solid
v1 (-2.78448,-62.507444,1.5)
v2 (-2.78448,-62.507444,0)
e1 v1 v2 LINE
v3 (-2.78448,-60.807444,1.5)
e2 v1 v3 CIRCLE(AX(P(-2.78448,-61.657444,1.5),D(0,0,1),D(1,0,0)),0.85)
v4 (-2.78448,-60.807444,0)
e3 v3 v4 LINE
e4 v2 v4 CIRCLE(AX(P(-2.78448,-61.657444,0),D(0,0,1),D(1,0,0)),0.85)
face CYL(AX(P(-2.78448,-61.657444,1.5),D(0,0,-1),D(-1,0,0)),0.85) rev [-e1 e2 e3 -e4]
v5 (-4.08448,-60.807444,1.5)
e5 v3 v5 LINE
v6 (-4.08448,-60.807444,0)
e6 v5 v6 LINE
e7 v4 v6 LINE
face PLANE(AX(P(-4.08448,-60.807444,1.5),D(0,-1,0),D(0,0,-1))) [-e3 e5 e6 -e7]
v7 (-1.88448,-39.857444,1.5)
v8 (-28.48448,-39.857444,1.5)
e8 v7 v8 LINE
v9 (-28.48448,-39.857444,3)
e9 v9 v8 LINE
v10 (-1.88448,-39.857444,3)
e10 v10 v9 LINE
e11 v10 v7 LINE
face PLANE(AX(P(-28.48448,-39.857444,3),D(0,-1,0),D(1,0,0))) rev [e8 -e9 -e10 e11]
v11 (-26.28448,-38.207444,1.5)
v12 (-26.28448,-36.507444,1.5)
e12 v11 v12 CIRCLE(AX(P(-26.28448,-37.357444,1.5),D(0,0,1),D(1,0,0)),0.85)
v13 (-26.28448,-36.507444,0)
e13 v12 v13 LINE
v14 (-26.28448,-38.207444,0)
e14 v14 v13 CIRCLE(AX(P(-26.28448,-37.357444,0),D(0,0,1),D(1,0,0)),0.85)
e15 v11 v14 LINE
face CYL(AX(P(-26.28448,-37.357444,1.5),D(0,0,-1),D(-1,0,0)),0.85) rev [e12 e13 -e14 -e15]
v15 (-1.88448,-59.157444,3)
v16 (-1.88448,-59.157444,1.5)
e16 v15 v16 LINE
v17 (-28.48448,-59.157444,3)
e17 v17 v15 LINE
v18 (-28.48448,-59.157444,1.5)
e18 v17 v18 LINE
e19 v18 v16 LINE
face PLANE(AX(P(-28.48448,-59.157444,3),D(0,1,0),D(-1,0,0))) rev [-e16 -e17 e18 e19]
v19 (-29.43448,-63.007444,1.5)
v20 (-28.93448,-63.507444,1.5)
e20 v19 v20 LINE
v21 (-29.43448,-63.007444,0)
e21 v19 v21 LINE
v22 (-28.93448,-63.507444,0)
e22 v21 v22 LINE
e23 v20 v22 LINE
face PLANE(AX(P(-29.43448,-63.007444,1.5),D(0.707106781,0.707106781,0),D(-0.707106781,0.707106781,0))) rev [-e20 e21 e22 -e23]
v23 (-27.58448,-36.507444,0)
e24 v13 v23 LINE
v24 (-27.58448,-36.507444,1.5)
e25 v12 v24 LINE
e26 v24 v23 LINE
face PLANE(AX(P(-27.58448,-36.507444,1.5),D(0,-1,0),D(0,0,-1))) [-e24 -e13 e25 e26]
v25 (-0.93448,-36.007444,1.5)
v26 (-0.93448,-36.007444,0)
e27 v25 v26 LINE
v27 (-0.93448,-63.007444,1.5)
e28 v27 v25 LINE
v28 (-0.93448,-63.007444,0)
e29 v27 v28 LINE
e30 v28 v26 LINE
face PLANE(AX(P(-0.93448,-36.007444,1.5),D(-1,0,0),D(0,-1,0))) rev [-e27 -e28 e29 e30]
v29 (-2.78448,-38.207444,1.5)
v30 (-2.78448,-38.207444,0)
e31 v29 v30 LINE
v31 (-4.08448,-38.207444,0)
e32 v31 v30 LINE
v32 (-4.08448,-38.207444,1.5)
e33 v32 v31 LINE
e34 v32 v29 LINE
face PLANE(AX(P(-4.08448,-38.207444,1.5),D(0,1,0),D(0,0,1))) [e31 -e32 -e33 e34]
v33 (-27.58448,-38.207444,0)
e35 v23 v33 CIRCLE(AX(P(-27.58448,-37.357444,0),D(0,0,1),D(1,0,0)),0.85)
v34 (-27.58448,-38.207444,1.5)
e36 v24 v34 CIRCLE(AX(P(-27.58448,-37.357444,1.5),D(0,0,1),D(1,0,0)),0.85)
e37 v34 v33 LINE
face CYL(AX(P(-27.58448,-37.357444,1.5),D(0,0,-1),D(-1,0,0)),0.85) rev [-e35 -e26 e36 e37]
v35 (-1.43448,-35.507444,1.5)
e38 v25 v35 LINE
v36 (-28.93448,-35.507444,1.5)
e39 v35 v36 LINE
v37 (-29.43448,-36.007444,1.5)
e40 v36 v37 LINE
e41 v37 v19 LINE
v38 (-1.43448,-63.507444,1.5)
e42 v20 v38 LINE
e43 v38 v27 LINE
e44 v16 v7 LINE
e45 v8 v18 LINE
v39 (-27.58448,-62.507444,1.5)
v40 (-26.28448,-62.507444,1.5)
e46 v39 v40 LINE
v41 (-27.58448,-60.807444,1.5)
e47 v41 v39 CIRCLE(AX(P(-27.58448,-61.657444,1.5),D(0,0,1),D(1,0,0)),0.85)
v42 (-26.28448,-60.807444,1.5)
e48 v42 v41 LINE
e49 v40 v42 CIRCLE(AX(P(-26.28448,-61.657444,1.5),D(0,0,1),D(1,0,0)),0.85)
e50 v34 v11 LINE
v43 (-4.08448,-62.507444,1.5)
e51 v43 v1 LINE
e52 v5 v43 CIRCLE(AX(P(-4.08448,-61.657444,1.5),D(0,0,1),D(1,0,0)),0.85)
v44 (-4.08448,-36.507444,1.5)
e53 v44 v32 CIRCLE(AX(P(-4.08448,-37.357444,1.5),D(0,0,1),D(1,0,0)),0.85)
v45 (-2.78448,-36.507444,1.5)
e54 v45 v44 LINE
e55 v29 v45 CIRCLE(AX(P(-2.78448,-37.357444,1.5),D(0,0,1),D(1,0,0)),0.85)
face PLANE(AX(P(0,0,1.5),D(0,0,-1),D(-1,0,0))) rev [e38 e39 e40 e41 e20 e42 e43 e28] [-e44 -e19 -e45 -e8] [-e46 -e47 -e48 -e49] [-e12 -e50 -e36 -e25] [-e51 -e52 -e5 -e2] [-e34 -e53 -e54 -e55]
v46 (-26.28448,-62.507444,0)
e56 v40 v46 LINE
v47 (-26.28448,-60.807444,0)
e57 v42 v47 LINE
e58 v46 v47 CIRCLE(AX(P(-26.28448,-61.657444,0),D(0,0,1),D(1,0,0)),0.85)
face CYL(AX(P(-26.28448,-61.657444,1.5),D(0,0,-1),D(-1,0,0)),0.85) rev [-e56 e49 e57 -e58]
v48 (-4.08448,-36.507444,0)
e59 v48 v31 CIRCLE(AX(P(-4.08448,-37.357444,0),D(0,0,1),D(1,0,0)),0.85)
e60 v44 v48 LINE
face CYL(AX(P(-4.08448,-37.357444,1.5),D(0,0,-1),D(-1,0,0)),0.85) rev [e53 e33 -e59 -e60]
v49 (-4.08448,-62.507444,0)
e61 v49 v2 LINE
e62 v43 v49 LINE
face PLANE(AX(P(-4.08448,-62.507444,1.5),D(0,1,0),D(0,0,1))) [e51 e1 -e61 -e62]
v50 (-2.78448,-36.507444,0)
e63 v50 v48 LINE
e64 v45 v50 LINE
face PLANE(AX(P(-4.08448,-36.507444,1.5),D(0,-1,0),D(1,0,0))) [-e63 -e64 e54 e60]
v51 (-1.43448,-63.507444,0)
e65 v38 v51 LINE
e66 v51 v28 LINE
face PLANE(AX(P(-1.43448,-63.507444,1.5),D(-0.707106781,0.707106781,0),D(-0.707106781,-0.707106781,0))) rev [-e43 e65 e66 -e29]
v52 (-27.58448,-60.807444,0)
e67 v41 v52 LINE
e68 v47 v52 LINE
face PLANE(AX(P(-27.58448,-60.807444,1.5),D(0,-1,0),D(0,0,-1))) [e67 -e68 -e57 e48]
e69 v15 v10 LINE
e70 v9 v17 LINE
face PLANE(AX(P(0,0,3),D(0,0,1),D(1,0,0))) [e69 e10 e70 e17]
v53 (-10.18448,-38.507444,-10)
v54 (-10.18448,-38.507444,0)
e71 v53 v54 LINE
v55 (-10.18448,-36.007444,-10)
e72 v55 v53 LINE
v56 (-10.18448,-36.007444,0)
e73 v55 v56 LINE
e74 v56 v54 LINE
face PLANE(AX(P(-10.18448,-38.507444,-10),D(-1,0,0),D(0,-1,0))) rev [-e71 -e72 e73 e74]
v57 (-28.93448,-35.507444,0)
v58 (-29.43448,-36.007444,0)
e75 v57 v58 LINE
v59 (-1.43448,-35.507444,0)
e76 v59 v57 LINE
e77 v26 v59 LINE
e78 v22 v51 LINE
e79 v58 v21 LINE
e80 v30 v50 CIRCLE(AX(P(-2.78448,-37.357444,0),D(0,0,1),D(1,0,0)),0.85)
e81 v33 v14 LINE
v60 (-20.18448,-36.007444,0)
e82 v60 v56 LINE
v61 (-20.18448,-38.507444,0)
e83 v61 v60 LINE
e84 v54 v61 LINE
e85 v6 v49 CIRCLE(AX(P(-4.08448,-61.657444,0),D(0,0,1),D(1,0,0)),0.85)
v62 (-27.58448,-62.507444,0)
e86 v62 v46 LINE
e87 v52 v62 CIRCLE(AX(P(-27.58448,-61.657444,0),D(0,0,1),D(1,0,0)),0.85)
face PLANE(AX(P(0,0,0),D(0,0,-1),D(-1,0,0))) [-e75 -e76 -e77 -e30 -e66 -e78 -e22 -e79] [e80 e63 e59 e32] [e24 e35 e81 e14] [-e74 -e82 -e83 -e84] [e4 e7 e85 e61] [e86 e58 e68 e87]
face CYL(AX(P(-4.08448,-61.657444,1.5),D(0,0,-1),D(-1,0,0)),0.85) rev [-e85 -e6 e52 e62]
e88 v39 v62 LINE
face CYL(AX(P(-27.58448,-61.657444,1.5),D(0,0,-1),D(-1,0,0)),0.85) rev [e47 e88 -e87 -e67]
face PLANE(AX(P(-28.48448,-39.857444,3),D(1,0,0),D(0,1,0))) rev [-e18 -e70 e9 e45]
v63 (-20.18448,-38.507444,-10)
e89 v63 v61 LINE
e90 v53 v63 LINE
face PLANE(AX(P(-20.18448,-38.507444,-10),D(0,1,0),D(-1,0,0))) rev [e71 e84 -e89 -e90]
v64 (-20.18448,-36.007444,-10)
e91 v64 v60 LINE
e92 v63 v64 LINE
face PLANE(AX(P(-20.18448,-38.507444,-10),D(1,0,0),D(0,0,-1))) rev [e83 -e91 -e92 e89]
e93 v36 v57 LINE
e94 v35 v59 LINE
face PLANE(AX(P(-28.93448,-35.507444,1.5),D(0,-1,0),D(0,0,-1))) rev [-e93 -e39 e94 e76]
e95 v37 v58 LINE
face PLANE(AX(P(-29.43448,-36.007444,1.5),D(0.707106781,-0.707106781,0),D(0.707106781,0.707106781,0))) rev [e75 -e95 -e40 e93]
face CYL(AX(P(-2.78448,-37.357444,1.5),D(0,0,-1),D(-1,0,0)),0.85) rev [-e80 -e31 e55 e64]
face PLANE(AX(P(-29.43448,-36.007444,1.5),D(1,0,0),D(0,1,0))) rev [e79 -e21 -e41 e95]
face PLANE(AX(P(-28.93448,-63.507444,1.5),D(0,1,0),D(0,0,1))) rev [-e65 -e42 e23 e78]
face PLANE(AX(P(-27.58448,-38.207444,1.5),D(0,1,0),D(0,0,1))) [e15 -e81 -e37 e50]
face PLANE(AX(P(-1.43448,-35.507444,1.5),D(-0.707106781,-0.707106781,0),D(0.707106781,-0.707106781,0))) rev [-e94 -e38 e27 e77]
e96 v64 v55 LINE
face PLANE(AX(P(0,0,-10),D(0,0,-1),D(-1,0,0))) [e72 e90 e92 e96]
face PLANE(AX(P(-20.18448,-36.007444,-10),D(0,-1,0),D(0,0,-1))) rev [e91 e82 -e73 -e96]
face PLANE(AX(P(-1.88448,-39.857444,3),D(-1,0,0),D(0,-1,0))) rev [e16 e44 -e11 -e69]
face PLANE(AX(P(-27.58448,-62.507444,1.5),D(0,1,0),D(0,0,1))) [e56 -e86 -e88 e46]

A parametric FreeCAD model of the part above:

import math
import FreeCAD as App
import Part
import Sketcher
from FreeCAD import Vector
Q = App.Units.Quantity

doc = App.newDocument("Part")
body = doc.addObject("PartDesign::Body", "Body")

# Sketch on XY plane
sketch1 = body.newObject("Sketcher::SketchObject", "Sketch")
sketch1.AttachmentSupport = (doc.getObject("XY_Plane"), [""])
sketch1.MapMode = "FlatFace"
sketch1.addGeometry([
    Part.LineSegment(Vector(-1.4, -35.5, 0), Vector(-28.9, -35.5, 0)),  # 0
    Part.LineSegment(Vector(-28.9, -35.5, 0), Vector(-29.4, -36, 0)),  # 1
    Part.LineSegment(Vector(-29.4, -36, 0), Vector(-29.4, -63, 0)),  # 2
    Part.LineSegment(Vector(-29.4, -63, 0), Vector(-28.9, -63.5, 0)),  # 3
    Part.LineSegment(Vector(-28.9, -63.5, 0), Vector(-1.4, -63.5, 0)),  # 4
    Part.LineSegment(Vector(-1.4, -63.5, 0), Vector(-0.9, -63, 0)),  # 5
    Part.LineSegment(Vector(-0.9, -63, 0), Vector(-0.9, -36, 0)),  # 6
    Part.LineSegment(Vector(-0.9, -36, 0), Vector(-1.4, -35.5, 0)),  # 7
    Part.LineSegment(Vector(-4.1, -60.8, 0), Vector(-2.8, -60.8, 0)),  # 8
    Part.ArcOfCircle(Part.Circle(Vector(-2.8, -61.7, 0), Vector(0, 0, 1), 0.8), math.radians(-90), math.radians(90)),  # 9
    Part.LineSegment(Vector(-2.8, -62.5, 0), Vector(-4.1, -62.5, 0)),  # 10
    Part.ArcOfCircle(Part.Circle(Vector(-4.1, -61.7, 0), Vector(0, 0, 1), 0.8), math.radians(90), math.radians(270)),  # 11
    Part.LineSegment(Vector(-27.6, -60.8, 0), Vector(-26.3, -60.8, 0)),  # 12
    Part.ArcOfCircle(Part.Circle(Vector(-26.3, -61.7, 0), Vector(0, 0, 1), 0.8), math.radians(-90), math.radians(90)),  # 13
    Part.LineSegment(Vector(-26.3, -62.5, 0), Vector(-27.6, -62.5, 0)),  # 14
    Part.ArcOfCircle(Part.Circle(Vector(-27.6, -61.7, 0), Vector(0, 0, 1), 0.8), math.radians(90), math.radians(270)),  # 15
    Part.LineSegment(Vector(-4.1, -36.5, 0), Vector(-2.8, -36.5, 0)),  # 16
    Part.ArcOfCircle(Part.Circle(Vector(-2.8, -37.4, 0), Vector(0, 0, 1), 0.8), math.radians(-90), math.radians(90)),  # 17
    Part.LineSegment(Vector(-2.8, -38.2, 0), Vector(-4.1, -38.2, 0)),  # 18
    Part.ArcOfCircle(Part.Circle(Vector(-4.1, -37.4, 0), Vector(0, 0, 1), 0.8), math.radians(90), math.radians(270)),  # 19
    Part.LineSegment(Vector(-27.6, -36.5, 0), Vector(-26.3, -36.5, 0)),  # 20
    Part.ArcOfCircle(Part.Circle(Vector(-26.3, -37.4, 0), Vector(0, 0, 1), 0.8), math.radians(-90), math.radians(90)),  # 21
    Part.LineSegment(Vector(-26.3, -38.2, 0), Vector(-27.6, -38.2, 0)),  # 22
    Part.ArcOfCircle(Part.Circle(Vector(-27.6, -37.4, 0), Vector(0, 0, 1), 0.8), math.radians(90), math.radians(270)),  # 23
], False)
sketch1.addConstraint([
    Sketcher.Constraint("Coincident", 0, 2, 1, 1),
    Sketcher.Constraint("Coincident", 1, 2, 2, 1),
    Sketcher.Constraint("Coincident", 2, 2, 3, 1),
    Sketcher.Constraint("Coincident", 3, 2, 4, 1),
    Sketcher.Constraint("Coincident", 4, 2, 5, 1),
    Sketcher.Constraint("Coincident", 5, 2, 6, 1),
    Sketcher.Constraint("Coincident", 6, 2, 7, 1),
    Sketcher.Constraint("Coincident", 7, 2, 0, 1),
    Sketcher.Constraint("Tangent", 8, 2, 9, 2),
    Sketcher.Constraint("Tangent", 9, 1, 10, 1),
    Sketcher.Constraint("Tangent", 10, 2, 11, 2),
    Sketcher.Constraint("Tangent", 11, 1, 8, 1),
    Sketcher.Constraint("Tangent", 12, 2, 13, 2),
    Sketcher.Constraint("Tangent", 13, 1, 14, 1),
    Sketcher.Constraint("Tangent", 14, 2, 15, 2),
    Sketcher.Constraint("Tangent", 15, 1, 12, 1),
    Sketcher.Constraint("Tangent", 16, 2, 17, 2),
    Sketcher.Constraint("Tangent", 17, 1, 18, 1),
    Sketcher.Constraint("Tangent", 18, 2, 19, 2),
    Sketcher.Constraint("Tangent", 19, 1, 16, 1),
    Sketcher.Constraint("Tangent", 20, 2, 21, 2),
    Sketcher.Constraint("Tangent", 21, 1, 22, 1),
    Sketcher.Constraint("Tangent", 22, 2, 23, 2),
    Sketcher.Constraint("Tangent", 23, 1, 20, 1),
    Sketcher.Constraint("Horizontal", 0),
    Sketcher.Constraint("Vertical", 2),
    Sketcher.Constraint("Horizontal", 4),
    Sketcher.Constraint("Vertical", 6),
    Sketcher.Constraint("Horizontal", 8),
    Sketcher.Constraint("Horizontal", 10),
    Sketcher.Constraint("Horizontal", 12),
    Sketcher.Constraint("Horizontal", 14),
    Sketcher.Constraint("Horizontal", 16),
    Sketcher.Constraint("Horizontal", 18),
    Sketcher.Constraint("Horizontal", 20),
    Sketcher.Constraint("Horizontal", 22),
    Sketcher.Constraint("Equal", 11, 13),
    Sketcher.Constraint("Equal", 15, 17),
    Sketcher.Constraint("Equal", 19, 21),
    Sketcher.Constraint("Perpendicular", 1, 3),
    Sketcher.Constraint("Perpendicular", 3, 5),
    Sketcher.Constraint("Perpendicular", 5, 7),
    Sketcher.Constraint("Horizontal", 11, 3, 13, 3),
    Sketcher.Constraint("Horizontal", 19, 3, 21, 3),
    Sketcher.Constraint("Horizontal", 2, 2, 5, 2),
    Sketcher.Constraint("Horizontal", 1, 2, 6, 2),
    Sketcher.Constraint("Vertical", 9, 3, 17, 3),
    Sketcher.Constraint("Vertical", 11, 3, 19, 3),
    Sketcher.Constraint("Vertical", 13, 3, 21, 3),
    Sketcher.Constraint("Vertical", 15, 3, 23, 3),
    Sketcher.Constraint("Vertical", 0, 2, 3, 2),
    Sketcher.Constraint("Vertical", 4, 2, 7, 2),
    Sketcher.Constraint("Equal", 10, 12),
    Sketcher.Constraint("DistanceY", 2, 2, 2, 1, Q("27 mm")),
    Sketcher.Constraint("Radius", 9, Q("0.85 mm")),
    Sketcher.Constraint("DistanceX", 0, 2, 0, 1, Q("27.5 mm")),
    Sketcher.Constraint("DistanceX", 8, 1, 8, 2, Q("1.3 mm")),
    Sketcher.Constraint("DistanceY", 4, 2, 9, 1, Q("1 mm")),
    Sketcher.Constraint("DistanceY", 16, 2, 7, 2, Q("1 mm")),
    Sketcher.Constraint("DistanceX", 13, 3, 11, 3, Q("22.2 mm")),
    Sketcher.Constraint("DistanceY", 9, 3, 17, 3, Q("24.3 mm")),
    Sketcher.Constraint("DistanceX", 0, 2, 23, 3, Q("1.35 mm")),
    Sketcher.Constraint("DistanceX", 9, 3, -1, 1, Q("2.78448 mm")),
    Sketcher.Constraint("DistanceY", 9, 3, -1, 1, Q("61.657444 mm")),
])
pad1 = body.newObject("PartDesign::Pad", "Pad")
pad1.Profile = sketch1
pad1.Length = 1.5

# Sketch on XY plane
sketch2 = body.newObject("Sketcher::SketchObject", "Sketch001")
sketch2.AttachmentSupport = (doc.getObject("XY_Plane"), [""])
sketch2.MapMode = "FlatFace"
sketch2.AttachmentOffset = App.Placement(Vector(0, 0, 1.5), App.Rotation())
sketch2.addGeometry([
    Part.LineSegment(Vector(-28, -40, 0), Vector(-28, -59, 0)),
    Part.LineSegment(Vector(-28, -59, 0), Vector(-2, -59, 0)),
    Part.LineSegment(Vector(-2, -59, 0), Vector(-2, -40, 0)),
    Part.LineSegment(Vector(-2, -40, 0), Vector(-28, -40, 0)),
], False)
sketch2.addConstraint([
    Sketcher.Constraint("Coincident", 0, 2, 1, 1),
    Sketcher.Constraint("Coincident", 1, 2, 2, 1),
    Sketcher.Constraint("Coincident", 2, 2, 3, 1),
    Sketcher.Constraint("Coincident", 3, 2, 0, 1),
    Sketcher.Constraint("Vertical", 0),
    Sketcher.Constraint("Horizontal", 1),
    Sketcher.Constraint("Vertical", 2),
    Sketcher.Constraint("Horizontal", 3),
    Sketcher.Constraint("DistanceX", 1, 1, 1, 2, Q("26.6 mm")),
    Sketcher.Constraint("DistanceY", 0, 2, 0, 1, Q("19.3 mm")),
    Sketcher.Constraint("DistanceX", 0, 2, -1, 1, Q("28.48448 mm")),
    Sketcher.Constraint("DistanceY", 0, 2, -1, 1, Q("59.157444 mm")),
])
pad2 = body.newObject("PartDesign::Pad", "Pad001")
pad2.Profile = sketch2
pad2.Length = 1.5

# Sketch on XY plane
sketch3 = body.newObject("Sketcher::SketchObject", "Sketch002")
sketch3.AttachmentSupport = (doc.getObject("XY_Plane"), [""])
sketch3.MapMode = "FlatFace"
sketch3.addGeometry([
    Part.LineSegment(Vector(-10.2, -36, 0), Vector(-10.2, -38.5, 0)),
    Part.LineSegment(Vector(-10.2, -38.5, 0), Vector(-20.2, -38.5, 0)),
    Part.LineSegment(Vector(-20.2, -38.5, 0), Vector(-20.2, -36, 0)),
    Part.LineSegment(Vector(-20.2, -36, 0), Vector(-10.2, -36, 0)),
], False)
sketch3.addConstraint([
    Sketcher.Constraint("Coincident", 0, 2, 1, 1),
    Sketcher.Constraint("Coincident", 1, 2, 2, 1),
    Sketcher.Constraint("Coincident", 2, 2, 3, 1),
    Sketcher.Constraint("Coincident", 3, 2, 0, 1),
    Sketcher.Constraint("Vertical", 0),
    Sketcher.Constraint("Horizontal", 1),
    Sketcher.Constraint("Vertical", 2),
    Sketcher.Constraint("Horizontal", 3),
    Sketcher.Constraint("DistanceX", 1, 2, 1, 1, Q("10 mm")),
    Sketcher.Constraint("DistanceY", 0, 2, 0, 1, Q("2.5 mm")),
    Sketcher.Constraint("DistanceX", 0, 2, -1, 1, Q("10.18448 mm")),
    Sketcher.Constraint("DistanceY", 0, 2, -1, 1, Q("38.507444 mm")),
])
pad3 = body.newObject("PartDesign::Pad", "Pad002")
pad3.Profile = sketch3
pad3.Length = 10
pad3.Reversed = True

doc.recompute()
